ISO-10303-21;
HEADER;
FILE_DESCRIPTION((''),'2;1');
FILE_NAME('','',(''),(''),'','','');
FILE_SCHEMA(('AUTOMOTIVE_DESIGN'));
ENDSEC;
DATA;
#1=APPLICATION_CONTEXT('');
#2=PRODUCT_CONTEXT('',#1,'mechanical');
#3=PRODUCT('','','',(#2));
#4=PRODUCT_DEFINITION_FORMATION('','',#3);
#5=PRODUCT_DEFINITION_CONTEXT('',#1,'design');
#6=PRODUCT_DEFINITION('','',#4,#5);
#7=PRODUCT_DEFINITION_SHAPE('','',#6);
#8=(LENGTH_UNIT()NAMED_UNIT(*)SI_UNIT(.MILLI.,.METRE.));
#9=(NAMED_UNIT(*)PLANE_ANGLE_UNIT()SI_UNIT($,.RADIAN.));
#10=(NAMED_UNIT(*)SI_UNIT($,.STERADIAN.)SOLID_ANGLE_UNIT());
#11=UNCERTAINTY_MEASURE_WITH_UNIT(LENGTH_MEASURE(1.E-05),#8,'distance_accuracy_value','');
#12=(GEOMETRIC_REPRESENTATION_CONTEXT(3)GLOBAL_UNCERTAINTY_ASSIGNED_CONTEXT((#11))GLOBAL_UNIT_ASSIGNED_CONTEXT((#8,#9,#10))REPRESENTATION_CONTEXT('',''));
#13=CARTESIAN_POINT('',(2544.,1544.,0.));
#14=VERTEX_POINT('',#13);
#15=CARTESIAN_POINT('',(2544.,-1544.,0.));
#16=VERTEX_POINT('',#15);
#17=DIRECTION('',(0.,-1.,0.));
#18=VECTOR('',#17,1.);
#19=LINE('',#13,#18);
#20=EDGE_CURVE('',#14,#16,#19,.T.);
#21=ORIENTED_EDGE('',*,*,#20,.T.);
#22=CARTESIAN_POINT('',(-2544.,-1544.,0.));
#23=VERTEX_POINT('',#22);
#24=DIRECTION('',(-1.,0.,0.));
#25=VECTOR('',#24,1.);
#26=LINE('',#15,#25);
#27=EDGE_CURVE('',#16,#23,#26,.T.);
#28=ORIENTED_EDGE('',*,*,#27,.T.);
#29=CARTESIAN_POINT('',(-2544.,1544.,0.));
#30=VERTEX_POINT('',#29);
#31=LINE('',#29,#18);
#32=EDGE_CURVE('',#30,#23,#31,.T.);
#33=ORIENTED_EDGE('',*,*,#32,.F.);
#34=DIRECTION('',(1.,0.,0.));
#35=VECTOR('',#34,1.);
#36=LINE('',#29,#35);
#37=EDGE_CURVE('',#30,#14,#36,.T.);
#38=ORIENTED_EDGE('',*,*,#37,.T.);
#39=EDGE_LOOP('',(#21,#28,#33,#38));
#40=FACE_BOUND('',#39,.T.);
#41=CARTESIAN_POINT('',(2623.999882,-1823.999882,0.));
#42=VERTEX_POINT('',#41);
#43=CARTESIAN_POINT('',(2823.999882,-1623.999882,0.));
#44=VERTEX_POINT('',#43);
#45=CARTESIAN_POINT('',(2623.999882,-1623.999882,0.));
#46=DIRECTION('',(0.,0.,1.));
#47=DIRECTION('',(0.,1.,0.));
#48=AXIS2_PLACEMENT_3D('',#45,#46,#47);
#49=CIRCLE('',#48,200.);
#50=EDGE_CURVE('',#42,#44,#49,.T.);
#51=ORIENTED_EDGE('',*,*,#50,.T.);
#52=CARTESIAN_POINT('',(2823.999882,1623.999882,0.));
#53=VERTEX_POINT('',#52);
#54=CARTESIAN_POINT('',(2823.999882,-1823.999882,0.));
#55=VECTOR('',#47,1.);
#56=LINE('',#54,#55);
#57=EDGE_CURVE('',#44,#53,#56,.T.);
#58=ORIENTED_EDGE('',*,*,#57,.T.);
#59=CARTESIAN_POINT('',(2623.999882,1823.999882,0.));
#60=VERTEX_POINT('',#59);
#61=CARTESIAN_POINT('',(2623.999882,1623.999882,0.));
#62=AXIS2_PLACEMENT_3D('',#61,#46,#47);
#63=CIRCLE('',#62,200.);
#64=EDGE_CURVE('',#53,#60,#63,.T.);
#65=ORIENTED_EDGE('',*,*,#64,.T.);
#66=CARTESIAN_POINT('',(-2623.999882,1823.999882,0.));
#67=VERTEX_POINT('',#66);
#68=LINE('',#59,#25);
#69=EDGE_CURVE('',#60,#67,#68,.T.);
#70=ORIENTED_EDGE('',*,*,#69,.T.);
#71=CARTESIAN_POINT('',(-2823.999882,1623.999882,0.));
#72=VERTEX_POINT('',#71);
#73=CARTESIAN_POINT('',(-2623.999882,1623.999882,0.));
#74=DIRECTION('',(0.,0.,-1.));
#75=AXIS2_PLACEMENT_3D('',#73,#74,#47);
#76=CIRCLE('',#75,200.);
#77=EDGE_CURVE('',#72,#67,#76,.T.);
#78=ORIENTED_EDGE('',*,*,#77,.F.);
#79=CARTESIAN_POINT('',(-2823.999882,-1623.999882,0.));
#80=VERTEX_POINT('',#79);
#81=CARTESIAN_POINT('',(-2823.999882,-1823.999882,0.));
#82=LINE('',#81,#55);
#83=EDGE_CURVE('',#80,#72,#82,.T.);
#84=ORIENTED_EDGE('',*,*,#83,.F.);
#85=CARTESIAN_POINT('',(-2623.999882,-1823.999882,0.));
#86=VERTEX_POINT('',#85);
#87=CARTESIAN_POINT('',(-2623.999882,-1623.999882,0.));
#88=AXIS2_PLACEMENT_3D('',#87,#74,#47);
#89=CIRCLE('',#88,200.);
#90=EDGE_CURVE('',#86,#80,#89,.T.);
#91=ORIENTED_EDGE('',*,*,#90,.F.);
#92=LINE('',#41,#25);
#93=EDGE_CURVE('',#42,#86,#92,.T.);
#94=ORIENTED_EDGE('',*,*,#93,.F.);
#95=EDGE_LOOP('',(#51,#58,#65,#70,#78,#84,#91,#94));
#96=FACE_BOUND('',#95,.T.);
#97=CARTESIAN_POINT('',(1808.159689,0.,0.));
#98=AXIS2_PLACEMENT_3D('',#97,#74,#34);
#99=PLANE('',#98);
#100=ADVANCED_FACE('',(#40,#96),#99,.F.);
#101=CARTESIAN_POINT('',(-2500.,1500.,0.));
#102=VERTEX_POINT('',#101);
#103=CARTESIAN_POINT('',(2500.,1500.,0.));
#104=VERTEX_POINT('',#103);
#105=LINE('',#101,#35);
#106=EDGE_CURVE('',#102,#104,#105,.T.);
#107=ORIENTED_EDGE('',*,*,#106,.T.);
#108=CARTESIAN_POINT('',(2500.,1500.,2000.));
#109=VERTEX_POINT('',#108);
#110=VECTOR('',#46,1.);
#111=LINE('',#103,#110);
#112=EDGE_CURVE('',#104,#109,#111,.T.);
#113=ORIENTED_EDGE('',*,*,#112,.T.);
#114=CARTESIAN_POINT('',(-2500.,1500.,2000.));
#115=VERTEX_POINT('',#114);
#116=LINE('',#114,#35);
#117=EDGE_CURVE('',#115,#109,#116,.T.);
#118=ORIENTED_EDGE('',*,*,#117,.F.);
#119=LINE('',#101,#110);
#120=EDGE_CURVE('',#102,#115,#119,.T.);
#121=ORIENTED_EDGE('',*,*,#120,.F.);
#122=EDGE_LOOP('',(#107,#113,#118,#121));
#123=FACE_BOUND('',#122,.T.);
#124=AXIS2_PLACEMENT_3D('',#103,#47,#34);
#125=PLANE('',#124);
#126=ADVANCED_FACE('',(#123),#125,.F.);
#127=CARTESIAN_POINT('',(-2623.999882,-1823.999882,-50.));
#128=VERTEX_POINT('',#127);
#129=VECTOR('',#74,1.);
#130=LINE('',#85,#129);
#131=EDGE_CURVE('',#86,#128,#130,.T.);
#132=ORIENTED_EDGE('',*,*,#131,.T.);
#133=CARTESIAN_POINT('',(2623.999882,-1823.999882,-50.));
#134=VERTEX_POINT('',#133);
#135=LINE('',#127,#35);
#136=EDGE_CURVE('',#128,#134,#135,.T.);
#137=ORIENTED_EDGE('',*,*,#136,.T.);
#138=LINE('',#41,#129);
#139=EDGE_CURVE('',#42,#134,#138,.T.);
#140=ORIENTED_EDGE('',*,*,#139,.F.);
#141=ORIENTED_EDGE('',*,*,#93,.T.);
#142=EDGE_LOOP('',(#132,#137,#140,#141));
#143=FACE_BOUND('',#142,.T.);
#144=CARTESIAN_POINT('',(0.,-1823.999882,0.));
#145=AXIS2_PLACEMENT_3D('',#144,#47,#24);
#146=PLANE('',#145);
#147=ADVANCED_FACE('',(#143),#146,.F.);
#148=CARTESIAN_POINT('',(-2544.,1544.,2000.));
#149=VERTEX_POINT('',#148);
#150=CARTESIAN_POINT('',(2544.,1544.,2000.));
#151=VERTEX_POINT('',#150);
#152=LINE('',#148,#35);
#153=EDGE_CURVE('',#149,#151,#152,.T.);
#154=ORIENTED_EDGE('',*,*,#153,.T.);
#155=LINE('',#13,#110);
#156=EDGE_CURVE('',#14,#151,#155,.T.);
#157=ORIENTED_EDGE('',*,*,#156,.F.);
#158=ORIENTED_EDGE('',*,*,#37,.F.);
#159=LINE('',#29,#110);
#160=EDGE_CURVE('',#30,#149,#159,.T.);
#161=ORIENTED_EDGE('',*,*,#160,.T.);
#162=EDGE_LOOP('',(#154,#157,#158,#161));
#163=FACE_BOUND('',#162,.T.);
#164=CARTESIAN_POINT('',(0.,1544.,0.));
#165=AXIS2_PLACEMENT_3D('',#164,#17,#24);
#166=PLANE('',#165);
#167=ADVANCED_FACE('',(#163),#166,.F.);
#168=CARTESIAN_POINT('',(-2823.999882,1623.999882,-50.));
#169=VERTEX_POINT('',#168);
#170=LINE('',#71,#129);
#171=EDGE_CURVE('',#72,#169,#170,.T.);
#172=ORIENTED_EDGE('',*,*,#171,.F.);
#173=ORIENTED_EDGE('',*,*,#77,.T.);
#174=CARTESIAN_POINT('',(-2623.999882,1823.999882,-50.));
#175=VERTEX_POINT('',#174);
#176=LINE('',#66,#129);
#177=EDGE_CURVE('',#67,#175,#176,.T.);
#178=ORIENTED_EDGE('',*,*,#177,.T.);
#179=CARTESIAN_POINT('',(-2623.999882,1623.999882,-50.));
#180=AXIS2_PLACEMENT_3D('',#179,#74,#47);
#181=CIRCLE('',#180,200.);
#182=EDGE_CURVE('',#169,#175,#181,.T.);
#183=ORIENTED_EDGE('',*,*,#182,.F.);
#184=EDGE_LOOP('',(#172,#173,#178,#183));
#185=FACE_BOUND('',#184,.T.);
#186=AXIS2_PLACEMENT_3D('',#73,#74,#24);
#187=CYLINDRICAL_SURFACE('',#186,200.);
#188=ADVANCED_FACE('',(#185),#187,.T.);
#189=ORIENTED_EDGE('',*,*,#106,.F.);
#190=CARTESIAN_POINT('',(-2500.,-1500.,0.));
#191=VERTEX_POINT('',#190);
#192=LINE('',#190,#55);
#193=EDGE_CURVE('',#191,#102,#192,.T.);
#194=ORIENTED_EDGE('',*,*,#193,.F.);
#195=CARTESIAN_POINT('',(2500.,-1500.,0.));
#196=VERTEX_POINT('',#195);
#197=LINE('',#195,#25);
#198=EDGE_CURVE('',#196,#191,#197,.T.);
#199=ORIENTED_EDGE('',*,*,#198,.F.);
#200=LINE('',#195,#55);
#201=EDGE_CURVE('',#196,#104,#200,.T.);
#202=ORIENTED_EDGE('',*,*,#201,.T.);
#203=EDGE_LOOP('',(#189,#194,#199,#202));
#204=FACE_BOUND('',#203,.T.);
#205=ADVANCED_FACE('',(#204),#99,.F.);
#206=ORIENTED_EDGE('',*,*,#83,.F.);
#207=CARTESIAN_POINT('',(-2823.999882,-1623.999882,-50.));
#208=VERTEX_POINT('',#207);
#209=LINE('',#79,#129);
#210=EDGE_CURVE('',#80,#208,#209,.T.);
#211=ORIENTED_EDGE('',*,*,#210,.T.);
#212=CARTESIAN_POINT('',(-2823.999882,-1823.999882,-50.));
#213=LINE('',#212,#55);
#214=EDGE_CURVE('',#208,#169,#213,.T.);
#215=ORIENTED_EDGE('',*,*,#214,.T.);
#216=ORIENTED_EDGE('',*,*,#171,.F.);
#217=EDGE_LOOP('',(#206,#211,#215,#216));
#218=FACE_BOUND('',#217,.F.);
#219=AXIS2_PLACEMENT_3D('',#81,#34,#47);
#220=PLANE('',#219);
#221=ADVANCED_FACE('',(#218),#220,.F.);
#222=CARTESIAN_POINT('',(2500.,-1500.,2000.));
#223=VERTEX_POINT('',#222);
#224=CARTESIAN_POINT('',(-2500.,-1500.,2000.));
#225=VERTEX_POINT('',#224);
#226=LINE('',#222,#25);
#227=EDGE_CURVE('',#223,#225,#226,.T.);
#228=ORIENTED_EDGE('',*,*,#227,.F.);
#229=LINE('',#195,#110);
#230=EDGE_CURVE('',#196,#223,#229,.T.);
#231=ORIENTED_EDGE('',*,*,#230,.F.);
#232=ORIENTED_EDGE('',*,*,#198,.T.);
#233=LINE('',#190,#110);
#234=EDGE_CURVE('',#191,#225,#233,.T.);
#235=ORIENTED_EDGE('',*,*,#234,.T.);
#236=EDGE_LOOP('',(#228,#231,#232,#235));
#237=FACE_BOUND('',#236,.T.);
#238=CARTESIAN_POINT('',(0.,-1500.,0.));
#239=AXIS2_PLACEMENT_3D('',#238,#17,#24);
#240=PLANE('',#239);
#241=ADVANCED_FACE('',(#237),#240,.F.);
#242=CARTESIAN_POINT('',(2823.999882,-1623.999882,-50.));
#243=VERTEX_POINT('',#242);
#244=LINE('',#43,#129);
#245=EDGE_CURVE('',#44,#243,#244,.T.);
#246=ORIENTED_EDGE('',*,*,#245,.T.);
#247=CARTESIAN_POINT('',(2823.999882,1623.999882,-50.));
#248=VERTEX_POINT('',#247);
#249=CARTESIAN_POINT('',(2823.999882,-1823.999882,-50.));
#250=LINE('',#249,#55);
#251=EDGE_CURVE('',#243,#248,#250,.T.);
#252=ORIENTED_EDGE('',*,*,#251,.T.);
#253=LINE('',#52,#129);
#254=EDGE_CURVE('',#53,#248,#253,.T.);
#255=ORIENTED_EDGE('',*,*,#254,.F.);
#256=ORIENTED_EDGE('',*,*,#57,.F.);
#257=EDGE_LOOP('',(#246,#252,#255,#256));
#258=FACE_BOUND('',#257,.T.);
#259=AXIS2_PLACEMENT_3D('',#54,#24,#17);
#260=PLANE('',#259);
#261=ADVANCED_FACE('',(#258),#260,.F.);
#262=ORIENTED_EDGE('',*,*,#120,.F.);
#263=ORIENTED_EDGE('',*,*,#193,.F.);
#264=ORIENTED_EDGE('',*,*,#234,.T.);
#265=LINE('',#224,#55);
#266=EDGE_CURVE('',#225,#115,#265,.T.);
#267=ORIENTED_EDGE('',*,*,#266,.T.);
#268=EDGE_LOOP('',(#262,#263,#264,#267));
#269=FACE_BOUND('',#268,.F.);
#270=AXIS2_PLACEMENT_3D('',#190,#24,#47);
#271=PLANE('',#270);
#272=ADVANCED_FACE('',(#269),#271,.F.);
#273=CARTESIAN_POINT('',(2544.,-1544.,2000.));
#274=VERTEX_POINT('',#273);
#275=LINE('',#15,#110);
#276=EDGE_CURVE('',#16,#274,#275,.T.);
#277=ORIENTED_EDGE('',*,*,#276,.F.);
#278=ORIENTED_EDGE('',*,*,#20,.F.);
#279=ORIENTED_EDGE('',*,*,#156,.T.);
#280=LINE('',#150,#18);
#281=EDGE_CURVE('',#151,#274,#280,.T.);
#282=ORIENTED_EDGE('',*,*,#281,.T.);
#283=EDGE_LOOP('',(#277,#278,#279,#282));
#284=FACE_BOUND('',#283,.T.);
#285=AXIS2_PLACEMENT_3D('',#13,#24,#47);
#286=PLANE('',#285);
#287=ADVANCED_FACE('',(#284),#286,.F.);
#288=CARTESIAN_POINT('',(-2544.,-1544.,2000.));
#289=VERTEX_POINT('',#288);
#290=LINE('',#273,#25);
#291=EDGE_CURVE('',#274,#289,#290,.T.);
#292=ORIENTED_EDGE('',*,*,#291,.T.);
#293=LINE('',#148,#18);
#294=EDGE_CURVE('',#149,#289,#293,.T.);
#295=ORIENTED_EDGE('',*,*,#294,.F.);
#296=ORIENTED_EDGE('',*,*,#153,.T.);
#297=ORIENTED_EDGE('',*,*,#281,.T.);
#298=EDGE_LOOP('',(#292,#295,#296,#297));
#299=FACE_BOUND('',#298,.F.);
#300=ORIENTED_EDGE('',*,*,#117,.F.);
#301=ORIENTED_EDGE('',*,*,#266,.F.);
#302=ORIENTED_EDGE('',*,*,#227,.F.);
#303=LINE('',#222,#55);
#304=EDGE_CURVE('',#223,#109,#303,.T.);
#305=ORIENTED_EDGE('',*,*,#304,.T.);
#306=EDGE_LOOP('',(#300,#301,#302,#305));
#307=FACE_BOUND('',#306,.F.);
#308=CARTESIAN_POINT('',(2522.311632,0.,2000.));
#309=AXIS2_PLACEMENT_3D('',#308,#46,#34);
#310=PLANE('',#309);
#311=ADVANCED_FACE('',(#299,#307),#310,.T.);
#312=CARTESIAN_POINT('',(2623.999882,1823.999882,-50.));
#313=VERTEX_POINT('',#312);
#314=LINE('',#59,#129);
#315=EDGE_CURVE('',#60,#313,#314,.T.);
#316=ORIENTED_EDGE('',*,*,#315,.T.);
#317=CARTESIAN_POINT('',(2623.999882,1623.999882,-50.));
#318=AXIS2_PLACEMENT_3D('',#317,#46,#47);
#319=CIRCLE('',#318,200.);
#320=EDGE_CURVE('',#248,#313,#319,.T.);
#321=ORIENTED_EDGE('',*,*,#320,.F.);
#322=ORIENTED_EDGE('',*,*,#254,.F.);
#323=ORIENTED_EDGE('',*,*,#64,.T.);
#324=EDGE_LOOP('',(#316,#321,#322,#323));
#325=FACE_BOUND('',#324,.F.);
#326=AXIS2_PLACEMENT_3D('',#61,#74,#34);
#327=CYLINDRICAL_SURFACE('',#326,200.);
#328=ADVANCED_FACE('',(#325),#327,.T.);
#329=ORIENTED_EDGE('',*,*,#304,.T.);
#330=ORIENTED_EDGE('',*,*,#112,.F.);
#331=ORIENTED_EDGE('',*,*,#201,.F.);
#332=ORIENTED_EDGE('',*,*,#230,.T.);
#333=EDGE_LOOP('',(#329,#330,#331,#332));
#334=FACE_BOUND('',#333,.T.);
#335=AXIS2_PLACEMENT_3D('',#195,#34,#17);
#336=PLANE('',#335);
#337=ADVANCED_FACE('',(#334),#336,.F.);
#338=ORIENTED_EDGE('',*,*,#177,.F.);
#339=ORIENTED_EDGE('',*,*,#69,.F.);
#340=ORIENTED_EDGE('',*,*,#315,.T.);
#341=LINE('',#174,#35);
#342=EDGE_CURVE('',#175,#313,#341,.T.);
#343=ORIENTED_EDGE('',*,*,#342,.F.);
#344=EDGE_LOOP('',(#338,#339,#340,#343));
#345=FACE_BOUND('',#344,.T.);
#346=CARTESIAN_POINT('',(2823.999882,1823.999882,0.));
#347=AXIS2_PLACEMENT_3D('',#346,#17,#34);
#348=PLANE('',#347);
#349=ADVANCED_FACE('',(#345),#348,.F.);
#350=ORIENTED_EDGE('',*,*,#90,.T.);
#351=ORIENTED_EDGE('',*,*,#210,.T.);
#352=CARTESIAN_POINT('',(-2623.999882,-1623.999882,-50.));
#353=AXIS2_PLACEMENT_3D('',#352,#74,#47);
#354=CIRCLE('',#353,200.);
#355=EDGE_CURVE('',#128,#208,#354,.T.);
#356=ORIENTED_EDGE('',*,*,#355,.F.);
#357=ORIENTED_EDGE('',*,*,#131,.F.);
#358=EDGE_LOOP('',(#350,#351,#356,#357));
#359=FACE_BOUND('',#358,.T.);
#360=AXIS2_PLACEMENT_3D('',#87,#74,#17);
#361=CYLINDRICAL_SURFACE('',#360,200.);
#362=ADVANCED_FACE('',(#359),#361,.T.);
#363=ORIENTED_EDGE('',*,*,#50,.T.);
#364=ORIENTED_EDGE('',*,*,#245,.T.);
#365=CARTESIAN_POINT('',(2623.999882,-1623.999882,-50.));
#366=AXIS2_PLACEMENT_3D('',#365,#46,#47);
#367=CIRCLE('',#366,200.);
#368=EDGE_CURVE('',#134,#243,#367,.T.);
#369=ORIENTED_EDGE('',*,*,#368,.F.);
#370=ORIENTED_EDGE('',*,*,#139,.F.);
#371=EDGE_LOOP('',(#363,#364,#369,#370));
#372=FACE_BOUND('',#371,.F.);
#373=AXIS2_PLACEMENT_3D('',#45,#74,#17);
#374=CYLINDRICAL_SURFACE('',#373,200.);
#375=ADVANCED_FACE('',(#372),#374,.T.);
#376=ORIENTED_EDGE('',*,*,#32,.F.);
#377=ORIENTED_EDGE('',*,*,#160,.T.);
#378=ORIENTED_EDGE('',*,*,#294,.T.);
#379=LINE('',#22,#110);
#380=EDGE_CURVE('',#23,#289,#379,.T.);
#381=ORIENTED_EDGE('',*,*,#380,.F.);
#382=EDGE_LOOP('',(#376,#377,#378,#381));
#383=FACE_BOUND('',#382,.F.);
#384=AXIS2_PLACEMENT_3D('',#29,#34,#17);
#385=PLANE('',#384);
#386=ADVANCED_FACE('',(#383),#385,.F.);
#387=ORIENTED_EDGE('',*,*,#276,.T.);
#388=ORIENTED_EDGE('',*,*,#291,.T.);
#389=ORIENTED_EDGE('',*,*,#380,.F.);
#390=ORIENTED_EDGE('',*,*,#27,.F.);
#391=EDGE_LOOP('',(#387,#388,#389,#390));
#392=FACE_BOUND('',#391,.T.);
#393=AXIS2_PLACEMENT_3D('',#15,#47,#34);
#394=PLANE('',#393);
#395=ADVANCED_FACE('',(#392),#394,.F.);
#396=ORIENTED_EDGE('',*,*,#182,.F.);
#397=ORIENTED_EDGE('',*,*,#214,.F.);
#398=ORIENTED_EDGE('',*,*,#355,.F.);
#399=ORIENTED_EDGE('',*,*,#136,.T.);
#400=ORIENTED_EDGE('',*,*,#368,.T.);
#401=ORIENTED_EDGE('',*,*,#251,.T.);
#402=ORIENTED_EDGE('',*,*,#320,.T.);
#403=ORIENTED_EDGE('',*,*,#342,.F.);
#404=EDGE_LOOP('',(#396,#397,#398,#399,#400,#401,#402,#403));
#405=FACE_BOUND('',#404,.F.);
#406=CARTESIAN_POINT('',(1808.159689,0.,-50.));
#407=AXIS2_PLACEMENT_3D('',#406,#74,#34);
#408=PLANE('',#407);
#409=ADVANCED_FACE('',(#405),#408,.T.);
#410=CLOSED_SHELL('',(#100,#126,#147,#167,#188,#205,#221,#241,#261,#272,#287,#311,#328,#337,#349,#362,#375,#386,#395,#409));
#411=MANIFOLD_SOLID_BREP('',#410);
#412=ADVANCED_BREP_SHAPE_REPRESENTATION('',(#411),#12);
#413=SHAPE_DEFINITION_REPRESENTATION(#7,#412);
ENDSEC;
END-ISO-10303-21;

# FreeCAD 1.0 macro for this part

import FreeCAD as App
import Part
import Sketcher


def edges_at(feature, points):
    """Names of the edges that pass closest to the given points."""
    edges = feature.Shape.Edges
    near = lambda p: min(range(len(edges)), key=lambda i: edges[i].distToShape(Part.Vertex(*p))[0])
    return sorted({f"Edge{near(p) + 1}" for p in points})

doc = App.newDocument("Part")
body = doc.addObject("PartDesign::Body", "Body")

sketch1 = body.newObject("Sketcher::SketchObject", "Sketch")
sketch1.AttachmentSupport = (doc.getObject("XY_Plane"), [""])
sketch1.MapMode = "FlatFace"
sketch1.addGeometry(Part.LineSegment(App.Vector(-2500, -1500, 0), App.Vector(-2500, 1500, 0)), False)
sketch1.addGeometry(Part.LineSegment(App.Vector(-2500, 1500, 0), App.Vector(0, 1500, 0)), False)
sketch1.addGeometry(Part.LineSegment(App.Vector(0, 1500, 0), App.Vector(0, 1544, 0)), False)
sketch1.addGeometry(Part.LineSegment(App.Vector(0, 1544, 0), App.Vector(-2544, 1544, 0)), False)
sketch1.addGeometry(Part.LineSegment(App.Vector(-2544, 1544, 0), App.Vector(-2544, -1544, 0)), False)
sketch1.addGeometry(Part.LineSegment(App.Vector(-2544, -1544, 0), App.Vector(0, -1544, 0)), False)
sketch1.addGeometry(Part.LineSegment(App.Vector(0, -1544, 0), App.Vector(0, -1500, 0)), False)
sketch1.addGeometry(Part.LineSegment(App.Vector(0, -1500, 0), App.Vector(-2500, -1500, 0)), False)
sketch1.addConstraint(Sketcher.Constraint("Coincident", 0, 2, 1, 1))
sketch1.addConstraint(Sketcher.Constraint("Coincident", 1, 2, 2, 1))
sketch1.addConstraint(Sketcher.Constraint("Coincident", 2, 2, 3, 1))
sketch1.addConstraint(Sketcher.Constraint("Coincident", 3, 2, 4, 1))
sketch1.addConstraint(Sketcher.Constraint("Coincident", 4, 2, 5, 1))
sketch1.addConstraint(Sketcher.Constraint("Coincident", 5, 2, 6, 1))
sketch1.addConstraint(Sketcher.Constraint("Coincident", 6, 2, 7, 1))
sketch1.addConstraint(Sketcher.Constraint("Coincident", 7, 2, 0, 1))
sketch1.addConstraint(Sketcher.Constraint("Vertical", 0))
sketch1.addConstraint(Sketcher.Constraint("Horizontal", 1))
sketch1.addConstraint(Sketcher.Constraint("Vertical", 2))
sketch1.addConstraint(Sketcher.Constraint("Horizontal", 3))
sketch1.addConstraint(Sketcher.Constraint("Vertical", 4))
sketch1.addConstraint(Sketcher.Constraint("Horizontal", 5))
sketch1.addConstraint(Sketcher.Constraint("Vertical", 6))
sketch1.addConstraint(Sketcher.Constraint("Horizontal", 7))
sketch1.addConstraint(Sketcher.Constraint("Symmetric", 2, 2, 5, 2, -1, 1))
sketch1.addConstraint(Sketcher.Constraint("Symmetric", 1, 2, 6, 2, -1))
sketch1.addConstraint(Sketcher.Constraint("DistanceX", 1, 1, 1, 2, 2500.0))
sketch1.addConstraint(Sketcher.Constraint("DistanceX", 3, 2, 3, 1, 2544.0))
sketch1.addConstraint(Sketcher.Constraint("DistanceY", 0, 1, 0, 2, 3000.0))
sketch1.addConstraint(Sketcher.Constraint("DistanceY", 2, 1, 2, 2, 44.0))
pad1 = body.newObject("PartDesign::Pad", "Pad")
pad1.Profile = sketch1
pad1.Length = 2000

sketch2 = body.newObject("Sketcher::SketchObject", "Sketch001")
sketch2.AttachmentSupport = (doc.getObject("XY_Plane"), [""])
sketch2.MapMode = "FlatFace"
sketch2.addGeometry(Part.LineSegment(App.Vector(0, -1823.999882, 0), App.Vector(-2823.999882, -1823.999882, 0)), False)
sketch2.addGeometry(Part.LineSegment(App.Vector(-2823.999882, -1823.999882, 0), App.Vector(-2823.999882, 1823.999882, 0)), False)
sketch2.addGeometry(Part.LineSegment(App.Vector(-2823.999882, 1823.999882, 0), App.Vector(0, 1823.999882, 0)), False)
sketch2.addGeometry(Part.LineSegment(App.Vector(0, 1823.999882, 0), App.Vector(0, -1823.999882, 0)), False)
sketch2.addConstraint(Sketcher.Constraint("Coincident", 0, 2, 1, 1))
sketch2.addConstraint(Sketcher.Constraint("Coincident", 1, 2, 2, 1))
sketch2.addConstraint(Sketcher.Constraint("Coincident", 2, 2, 3, 1))
sketch2.addConstraint(Sketcher.Constraint("Coincident", 3, 2, 0, 1))
sketch2.addConstraint(Sketcher.Constraint("Horizontal", 0))
sketch2.addConstraint(Sketcher.Constraint("Vertical", 1))
sketch2.addConstraint(Sketcher.Constraint("Horizontal", 2))
sketch2.addConstraint(Sketcher.Constraint("Vertical", 3))
sketch2.addConstraint(Sketcher.Constraint("Symmetric", 2, 2, 3, 2, -1, 1))
sketch2.addConstraint(Sketcher.Constraint("DistanceX", 0, 2, 0, 1, 2823.999882))
sketch2.addConstraint(Sketcher.Constraint("DistanceY", 1, 1, 1, 2, 3647.999763))
pad2 = body.newObject("PartDesign::Pad", "Pad001")
pad2.Profile = sketch2
pad2.Length = 50
pad2.Reversed = True
doc.recompute()

fillet = body.newObject("PartDesign::Fillet", "Fillet")
fillet.Base = (pad2, edges_at(pad2, [(-2824, -1824, -25), (-2824, 1824, -25)]))
fillet.Radius = 200
body2 = doc.addObject("PartDesign::Body", "Body001")
doc.recompute()

body2.BaseFeature = body
doc.recompute()

mirroring = doc.addObject("Part::Mirroring", "Mirroring")
mirroring.Source = body
mirroring.Base = App.Vector(0, 0, 478.348231)
mirroring.Normal = App.Vector(1, 0, 0)
body3 = doc.addObject("PartDesign::Body", "Body002")
body3.BaseFeature = mirroring
boolean = body2.newObject("PartDesign::Boolean", "Boolean")
boolean.Type = "Fuse"
boolean.addObjects([body3])
doc.recompute()
mirroring.Visibility = False

doc.recompute()
